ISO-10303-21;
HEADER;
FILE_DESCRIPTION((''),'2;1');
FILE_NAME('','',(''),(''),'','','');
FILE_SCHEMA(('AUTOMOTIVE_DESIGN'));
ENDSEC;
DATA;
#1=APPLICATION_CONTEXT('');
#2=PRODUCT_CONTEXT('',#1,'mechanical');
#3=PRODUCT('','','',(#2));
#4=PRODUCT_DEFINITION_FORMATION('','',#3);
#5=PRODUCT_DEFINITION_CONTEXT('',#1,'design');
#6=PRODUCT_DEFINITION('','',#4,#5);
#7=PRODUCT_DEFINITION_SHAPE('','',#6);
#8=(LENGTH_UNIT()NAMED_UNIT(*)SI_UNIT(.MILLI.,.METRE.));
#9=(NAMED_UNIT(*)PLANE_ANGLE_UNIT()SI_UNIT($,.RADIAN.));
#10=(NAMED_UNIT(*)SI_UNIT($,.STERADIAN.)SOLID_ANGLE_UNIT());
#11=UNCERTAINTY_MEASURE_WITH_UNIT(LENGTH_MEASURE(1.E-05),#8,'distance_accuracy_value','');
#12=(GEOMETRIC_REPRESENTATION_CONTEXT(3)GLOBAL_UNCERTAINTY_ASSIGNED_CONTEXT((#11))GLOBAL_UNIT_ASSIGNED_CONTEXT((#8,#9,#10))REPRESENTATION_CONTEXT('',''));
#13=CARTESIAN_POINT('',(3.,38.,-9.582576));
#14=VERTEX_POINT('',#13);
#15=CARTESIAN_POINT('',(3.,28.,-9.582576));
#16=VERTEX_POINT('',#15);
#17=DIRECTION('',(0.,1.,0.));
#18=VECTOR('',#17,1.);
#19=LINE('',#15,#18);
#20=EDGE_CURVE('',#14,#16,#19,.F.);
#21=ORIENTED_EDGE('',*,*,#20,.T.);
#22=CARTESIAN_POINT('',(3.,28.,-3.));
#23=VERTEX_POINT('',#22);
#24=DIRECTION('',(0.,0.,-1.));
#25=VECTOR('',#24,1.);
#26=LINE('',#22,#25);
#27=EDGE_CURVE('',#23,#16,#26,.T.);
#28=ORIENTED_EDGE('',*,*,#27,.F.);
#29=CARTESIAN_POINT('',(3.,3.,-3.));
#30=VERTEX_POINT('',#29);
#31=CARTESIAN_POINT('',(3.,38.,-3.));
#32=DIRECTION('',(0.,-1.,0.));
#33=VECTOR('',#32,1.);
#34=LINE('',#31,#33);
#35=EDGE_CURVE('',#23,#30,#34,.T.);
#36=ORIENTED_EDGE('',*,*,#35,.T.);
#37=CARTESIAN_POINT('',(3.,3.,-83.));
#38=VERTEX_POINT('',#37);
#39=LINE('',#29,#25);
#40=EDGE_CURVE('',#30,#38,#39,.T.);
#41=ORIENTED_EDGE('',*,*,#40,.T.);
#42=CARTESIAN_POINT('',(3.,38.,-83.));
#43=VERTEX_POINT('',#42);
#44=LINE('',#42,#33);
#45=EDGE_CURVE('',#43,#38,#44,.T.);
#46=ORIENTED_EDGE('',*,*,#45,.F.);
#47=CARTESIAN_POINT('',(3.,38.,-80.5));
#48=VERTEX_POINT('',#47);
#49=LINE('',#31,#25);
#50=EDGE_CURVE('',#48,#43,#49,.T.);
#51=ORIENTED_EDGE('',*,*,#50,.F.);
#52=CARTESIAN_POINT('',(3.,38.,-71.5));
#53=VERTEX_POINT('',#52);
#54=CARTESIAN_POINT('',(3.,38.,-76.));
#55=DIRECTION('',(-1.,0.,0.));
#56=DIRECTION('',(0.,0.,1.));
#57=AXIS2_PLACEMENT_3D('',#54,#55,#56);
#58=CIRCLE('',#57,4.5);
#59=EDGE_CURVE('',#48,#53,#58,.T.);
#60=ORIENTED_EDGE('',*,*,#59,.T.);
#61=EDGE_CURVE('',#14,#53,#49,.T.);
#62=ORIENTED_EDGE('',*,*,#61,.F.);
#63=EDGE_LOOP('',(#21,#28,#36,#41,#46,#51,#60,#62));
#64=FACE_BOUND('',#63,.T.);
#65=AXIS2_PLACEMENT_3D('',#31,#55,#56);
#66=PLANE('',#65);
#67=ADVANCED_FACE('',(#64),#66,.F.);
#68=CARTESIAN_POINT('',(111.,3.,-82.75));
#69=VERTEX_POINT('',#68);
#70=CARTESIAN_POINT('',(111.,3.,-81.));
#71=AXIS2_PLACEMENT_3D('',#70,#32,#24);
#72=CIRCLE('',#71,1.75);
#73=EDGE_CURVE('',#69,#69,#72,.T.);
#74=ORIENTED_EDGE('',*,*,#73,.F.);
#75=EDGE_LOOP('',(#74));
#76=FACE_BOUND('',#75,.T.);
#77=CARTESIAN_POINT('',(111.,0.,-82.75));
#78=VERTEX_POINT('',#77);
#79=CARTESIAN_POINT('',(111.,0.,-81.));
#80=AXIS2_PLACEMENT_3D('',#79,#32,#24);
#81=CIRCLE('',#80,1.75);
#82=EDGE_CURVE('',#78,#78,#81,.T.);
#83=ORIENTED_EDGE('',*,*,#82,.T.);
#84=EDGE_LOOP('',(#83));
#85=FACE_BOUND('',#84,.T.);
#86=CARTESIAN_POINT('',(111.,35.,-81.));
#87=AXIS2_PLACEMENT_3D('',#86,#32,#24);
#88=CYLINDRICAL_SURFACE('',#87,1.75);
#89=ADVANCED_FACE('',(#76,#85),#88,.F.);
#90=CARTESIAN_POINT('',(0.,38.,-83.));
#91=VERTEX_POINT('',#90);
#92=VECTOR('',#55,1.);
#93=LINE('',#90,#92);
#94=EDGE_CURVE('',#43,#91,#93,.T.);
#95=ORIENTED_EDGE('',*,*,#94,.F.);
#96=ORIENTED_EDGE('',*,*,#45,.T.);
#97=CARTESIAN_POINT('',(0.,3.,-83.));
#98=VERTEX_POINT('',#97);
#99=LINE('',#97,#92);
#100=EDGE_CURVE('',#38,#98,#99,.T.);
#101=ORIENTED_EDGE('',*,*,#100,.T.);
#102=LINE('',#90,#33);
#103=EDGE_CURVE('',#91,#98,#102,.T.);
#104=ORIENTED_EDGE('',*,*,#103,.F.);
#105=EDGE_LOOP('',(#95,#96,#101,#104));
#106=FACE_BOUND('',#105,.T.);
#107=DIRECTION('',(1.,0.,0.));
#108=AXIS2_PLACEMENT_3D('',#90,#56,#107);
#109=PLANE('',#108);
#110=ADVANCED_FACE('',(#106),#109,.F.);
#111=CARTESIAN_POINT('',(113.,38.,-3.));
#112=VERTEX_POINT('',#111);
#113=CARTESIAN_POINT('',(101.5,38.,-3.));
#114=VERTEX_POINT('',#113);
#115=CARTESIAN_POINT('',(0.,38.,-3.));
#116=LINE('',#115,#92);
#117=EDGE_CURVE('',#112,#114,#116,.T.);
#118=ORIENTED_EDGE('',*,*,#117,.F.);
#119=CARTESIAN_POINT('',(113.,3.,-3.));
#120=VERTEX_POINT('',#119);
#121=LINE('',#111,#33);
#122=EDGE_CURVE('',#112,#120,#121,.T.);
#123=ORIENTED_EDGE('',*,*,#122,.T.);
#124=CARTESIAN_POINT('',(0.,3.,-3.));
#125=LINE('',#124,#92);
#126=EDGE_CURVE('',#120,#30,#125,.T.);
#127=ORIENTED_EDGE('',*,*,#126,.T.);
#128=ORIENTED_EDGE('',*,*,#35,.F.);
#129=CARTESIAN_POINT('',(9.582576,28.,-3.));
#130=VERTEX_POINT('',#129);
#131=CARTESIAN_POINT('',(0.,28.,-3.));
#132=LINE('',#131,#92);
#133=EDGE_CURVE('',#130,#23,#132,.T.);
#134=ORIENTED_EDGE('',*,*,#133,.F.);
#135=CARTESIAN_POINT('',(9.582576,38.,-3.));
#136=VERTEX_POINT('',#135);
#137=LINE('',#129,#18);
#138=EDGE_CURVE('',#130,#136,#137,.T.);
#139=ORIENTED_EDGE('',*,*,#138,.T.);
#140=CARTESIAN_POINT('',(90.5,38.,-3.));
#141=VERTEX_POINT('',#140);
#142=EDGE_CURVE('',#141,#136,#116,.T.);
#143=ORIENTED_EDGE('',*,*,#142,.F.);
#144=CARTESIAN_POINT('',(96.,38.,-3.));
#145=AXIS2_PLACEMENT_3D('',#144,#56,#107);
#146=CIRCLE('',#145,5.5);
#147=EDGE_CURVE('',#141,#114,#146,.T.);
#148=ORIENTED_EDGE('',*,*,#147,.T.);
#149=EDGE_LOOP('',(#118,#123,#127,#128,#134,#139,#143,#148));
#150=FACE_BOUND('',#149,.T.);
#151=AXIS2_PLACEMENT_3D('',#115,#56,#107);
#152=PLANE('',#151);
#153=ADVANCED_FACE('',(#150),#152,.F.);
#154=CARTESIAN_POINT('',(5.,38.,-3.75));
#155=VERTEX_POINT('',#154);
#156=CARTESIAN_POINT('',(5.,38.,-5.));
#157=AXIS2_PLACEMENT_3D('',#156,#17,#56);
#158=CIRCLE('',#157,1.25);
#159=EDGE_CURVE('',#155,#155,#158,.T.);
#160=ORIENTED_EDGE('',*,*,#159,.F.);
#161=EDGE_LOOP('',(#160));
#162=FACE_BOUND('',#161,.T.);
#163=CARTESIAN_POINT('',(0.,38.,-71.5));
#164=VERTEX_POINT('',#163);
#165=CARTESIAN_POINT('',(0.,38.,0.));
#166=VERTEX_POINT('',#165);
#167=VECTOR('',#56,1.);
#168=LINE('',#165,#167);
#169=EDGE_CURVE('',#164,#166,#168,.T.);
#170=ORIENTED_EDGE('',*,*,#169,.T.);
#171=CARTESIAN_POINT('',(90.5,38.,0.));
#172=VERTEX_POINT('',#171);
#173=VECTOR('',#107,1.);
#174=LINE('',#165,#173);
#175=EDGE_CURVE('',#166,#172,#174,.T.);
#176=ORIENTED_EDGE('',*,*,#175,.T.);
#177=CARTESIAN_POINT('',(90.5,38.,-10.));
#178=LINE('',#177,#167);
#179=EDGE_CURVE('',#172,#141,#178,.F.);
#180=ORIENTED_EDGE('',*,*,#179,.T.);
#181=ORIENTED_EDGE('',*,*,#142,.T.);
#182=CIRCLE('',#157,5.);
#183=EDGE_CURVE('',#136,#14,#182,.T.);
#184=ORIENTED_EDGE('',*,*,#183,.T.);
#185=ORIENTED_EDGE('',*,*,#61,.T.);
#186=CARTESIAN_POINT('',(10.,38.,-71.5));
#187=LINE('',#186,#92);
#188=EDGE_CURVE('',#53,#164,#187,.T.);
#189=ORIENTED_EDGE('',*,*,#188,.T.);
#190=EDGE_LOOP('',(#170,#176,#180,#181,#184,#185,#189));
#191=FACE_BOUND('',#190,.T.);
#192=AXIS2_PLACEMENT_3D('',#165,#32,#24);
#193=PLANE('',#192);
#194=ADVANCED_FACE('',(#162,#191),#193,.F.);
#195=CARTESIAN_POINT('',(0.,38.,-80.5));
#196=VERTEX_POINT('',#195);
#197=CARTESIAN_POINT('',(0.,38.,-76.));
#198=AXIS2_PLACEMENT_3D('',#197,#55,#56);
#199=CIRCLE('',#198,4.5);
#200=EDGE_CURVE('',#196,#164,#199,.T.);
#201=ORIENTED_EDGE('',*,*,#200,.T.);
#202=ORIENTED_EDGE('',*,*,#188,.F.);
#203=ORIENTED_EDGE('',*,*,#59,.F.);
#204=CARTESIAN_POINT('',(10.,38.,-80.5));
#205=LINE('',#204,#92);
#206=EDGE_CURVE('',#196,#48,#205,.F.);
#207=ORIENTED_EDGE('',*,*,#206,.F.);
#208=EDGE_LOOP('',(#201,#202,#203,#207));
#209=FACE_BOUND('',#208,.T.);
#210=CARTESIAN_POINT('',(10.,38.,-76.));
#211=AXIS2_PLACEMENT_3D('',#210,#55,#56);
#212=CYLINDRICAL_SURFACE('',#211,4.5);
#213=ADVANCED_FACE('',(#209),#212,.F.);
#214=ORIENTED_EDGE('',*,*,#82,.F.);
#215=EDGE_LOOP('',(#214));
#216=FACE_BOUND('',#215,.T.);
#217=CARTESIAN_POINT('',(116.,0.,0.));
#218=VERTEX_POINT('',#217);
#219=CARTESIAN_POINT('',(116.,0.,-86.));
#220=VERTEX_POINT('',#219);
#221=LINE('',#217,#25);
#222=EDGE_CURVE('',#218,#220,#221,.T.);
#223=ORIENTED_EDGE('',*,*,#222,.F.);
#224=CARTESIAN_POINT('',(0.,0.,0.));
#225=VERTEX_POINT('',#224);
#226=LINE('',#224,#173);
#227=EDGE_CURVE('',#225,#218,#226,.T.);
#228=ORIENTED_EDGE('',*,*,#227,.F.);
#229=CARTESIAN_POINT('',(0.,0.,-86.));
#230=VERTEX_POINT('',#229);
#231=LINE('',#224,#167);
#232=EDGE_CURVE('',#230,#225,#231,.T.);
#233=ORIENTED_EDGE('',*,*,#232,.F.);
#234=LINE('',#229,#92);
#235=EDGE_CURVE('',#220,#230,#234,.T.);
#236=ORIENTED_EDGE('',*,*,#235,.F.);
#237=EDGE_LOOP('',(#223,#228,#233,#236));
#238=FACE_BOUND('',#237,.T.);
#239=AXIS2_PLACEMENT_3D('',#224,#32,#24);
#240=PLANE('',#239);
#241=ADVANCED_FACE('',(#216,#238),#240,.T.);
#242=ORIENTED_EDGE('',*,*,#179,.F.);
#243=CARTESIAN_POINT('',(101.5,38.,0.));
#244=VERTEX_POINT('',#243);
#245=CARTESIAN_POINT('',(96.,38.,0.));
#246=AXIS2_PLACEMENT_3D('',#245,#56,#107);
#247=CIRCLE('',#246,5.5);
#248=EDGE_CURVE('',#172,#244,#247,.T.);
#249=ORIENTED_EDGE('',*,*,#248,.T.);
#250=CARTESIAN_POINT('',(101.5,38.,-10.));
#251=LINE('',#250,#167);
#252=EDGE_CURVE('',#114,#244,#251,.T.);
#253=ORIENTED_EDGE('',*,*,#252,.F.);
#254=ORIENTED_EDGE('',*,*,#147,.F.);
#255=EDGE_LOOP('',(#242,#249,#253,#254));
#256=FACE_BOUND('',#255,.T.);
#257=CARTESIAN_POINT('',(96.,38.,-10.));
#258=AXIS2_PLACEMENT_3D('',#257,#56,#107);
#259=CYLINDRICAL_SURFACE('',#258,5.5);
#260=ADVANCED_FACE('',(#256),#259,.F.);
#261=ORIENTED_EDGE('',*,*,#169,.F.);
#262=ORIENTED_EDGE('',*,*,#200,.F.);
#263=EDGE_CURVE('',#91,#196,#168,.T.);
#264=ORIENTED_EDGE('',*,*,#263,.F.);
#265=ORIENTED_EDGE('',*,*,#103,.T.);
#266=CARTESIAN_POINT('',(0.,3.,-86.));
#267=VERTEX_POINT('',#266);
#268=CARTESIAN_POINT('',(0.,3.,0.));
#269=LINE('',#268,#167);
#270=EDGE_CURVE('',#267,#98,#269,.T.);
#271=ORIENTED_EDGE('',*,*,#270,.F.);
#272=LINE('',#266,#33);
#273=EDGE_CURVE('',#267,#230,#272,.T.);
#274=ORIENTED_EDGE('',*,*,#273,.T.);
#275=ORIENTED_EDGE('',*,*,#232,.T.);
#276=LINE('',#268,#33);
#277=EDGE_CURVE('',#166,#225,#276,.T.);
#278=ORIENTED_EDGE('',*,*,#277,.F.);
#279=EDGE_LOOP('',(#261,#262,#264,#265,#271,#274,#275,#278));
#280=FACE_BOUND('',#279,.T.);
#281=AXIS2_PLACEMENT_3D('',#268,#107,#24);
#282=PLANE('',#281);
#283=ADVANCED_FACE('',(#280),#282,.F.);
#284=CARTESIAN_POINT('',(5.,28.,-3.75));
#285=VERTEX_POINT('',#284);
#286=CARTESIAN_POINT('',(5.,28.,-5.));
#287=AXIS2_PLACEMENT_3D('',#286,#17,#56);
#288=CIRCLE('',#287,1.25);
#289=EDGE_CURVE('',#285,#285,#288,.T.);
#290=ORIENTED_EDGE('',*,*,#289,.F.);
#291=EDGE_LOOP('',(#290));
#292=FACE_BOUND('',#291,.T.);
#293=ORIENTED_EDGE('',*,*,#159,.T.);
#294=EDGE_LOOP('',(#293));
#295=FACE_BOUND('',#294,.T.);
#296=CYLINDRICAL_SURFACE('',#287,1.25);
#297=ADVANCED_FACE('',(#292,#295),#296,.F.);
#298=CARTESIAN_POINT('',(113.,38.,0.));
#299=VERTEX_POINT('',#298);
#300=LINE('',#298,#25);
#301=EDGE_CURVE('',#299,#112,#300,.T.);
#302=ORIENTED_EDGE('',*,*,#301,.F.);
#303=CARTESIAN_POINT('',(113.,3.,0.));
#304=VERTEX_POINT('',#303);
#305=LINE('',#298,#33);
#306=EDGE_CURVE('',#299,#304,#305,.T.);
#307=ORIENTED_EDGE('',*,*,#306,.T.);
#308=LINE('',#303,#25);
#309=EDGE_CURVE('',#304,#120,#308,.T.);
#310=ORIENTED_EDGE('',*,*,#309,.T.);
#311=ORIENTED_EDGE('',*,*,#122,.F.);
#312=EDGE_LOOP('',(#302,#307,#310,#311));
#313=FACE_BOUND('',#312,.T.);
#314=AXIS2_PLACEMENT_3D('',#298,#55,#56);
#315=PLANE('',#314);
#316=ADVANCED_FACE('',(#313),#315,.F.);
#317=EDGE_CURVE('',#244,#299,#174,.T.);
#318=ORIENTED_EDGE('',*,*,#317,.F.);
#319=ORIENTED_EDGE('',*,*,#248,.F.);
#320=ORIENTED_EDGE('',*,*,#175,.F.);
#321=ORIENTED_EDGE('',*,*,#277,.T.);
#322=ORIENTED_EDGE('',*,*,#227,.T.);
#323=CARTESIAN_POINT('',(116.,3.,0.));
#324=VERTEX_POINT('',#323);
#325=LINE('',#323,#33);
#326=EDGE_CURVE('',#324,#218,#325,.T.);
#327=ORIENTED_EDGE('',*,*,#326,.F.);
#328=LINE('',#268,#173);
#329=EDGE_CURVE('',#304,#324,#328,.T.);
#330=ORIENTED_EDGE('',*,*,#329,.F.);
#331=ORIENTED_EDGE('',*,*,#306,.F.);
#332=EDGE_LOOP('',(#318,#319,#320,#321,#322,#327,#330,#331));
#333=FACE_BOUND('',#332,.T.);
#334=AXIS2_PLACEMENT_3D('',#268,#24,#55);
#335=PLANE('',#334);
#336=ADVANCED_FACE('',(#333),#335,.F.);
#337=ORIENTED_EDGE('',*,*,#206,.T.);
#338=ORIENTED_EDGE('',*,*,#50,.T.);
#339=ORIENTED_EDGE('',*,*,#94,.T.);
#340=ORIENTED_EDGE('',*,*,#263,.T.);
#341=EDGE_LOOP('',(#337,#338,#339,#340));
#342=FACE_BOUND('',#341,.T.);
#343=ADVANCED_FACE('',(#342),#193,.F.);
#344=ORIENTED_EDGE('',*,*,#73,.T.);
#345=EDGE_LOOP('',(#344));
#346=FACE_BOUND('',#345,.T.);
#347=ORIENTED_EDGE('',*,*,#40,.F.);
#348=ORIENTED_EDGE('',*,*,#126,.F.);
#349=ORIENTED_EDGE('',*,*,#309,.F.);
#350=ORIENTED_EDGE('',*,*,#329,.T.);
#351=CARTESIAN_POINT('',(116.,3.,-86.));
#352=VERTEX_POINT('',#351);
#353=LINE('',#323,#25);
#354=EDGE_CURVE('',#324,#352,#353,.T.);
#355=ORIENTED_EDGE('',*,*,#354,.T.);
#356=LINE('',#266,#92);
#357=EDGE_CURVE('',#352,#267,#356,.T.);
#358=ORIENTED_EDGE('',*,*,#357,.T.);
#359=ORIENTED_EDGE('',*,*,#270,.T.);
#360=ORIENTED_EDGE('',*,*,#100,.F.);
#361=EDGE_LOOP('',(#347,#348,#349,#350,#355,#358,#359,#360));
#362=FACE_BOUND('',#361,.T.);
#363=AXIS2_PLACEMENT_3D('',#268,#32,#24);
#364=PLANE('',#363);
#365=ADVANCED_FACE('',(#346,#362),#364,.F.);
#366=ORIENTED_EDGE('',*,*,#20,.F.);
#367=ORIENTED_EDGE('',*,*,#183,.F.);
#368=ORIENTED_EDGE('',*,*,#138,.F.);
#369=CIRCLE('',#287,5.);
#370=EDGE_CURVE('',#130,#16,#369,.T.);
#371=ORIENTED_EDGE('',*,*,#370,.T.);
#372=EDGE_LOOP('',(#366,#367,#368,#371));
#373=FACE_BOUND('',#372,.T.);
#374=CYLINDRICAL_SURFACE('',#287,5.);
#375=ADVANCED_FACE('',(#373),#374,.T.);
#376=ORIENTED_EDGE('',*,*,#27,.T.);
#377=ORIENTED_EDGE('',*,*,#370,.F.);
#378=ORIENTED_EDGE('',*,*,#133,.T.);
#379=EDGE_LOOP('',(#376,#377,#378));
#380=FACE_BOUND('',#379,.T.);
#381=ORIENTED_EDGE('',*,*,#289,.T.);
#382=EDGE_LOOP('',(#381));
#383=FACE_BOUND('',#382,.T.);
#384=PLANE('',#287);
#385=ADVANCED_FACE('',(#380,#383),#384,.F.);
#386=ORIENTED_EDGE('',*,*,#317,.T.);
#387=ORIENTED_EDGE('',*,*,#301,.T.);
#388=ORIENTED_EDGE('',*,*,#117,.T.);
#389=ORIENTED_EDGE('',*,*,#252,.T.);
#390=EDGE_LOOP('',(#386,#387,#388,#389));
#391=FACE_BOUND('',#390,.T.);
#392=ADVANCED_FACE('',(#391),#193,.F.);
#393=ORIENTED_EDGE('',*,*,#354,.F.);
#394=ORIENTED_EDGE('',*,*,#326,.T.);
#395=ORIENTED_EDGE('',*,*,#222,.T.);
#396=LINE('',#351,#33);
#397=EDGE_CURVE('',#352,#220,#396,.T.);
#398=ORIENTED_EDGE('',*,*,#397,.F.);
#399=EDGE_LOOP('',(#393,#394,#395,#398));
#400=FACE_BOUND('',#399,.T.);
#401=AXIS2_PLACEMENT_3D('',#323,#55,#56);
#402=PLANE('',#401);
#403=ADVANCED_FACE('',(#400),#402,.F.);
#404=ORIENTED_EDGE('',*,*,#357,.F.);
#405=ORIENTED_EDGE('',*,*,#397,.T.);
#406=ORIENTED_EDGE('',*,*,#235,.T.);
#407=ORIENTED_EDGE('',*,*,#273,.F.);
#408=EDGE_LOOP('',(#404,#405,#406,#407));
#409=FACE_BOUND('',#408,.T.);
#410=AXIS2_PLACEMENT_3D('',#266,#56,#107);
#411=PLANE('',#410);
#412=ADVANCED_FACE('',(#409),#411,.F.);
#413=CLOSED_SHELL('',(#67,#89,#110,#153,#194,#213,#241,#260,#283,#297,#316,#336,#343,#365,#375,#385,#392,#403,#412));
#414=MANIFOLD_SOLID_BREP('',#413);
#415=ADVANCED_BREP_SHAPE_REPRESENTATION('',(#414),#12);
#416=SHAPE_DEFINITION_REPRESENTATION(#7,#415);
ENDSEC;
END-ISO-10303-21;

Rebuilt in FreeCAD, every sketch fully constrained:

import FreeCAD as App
import Part
import Sketcher

V = App.Vector
Q = App.Units.Quantity


def add_polygon(sketch, points):
    """Adds a closed chain of lines whose ends are joined by coincident constraints."""
    first, n = sketch.GeometryCount, len(points)
    for a, b in zip(points, points[1:] + points[:1]):
        sketch.addGeometry(Part.LineSegment(App.Vector(*a, 0), App.Vector(*b, 0)), False)
    for i in range(n):
        sketch.addConstraint(Sketcher.Constraint("Coincident", first + i, 2, first + (i + 1) % n, 1))

doc = App.newDocument("Part")
params = doc.addObject("Spreadsheet::Sheet", "Params")
for row, (alias, value) in enumerate([
    ("sketch1_width", "116 mm"),
    ("sketch1_height", "86 mm"),
    ("pad1_length", "3 mm"),
    ("sketch2_width", "113 mm"),
    ("sketch2_height", "3 mm"),
    ("pad2_length", "35 mm"),
    ("sketch3_width", "3 mm"),
    ("sketch3_height", "80 mm"),
    ("pad3_length", "35 mm"),
    ("sketch4_diameter", "3.5 mm"),
    ("pocket1_length", "35 mm"),
    ("sketch5_diameter", "10 mm"),
    ("sketch5_diameter2", "2.5 mm"),
    ("pad4_length", "10 mm"),
    ("sketch6_diameter", "11 mm"),
    ("pocket2_length", "10 mm"),
    ("sketch7_diameter", "9 mm"),
    ("pocket3_length", "10 mm"),
], start=1):
    params.set(f"A{row}", alias)
    params.set(f"B{row}", "=" + value)
    params.setAlias(f"B{row}", alias)

body = doc.addObject("PartDesign::Body", "Body")

# Sketch on XZ plane
sketch1 = body.newObject("Sketcher::SketchObject", "Sketch")
sketch1.AttachmentSupport = (doc.getObject("XZ_Plane"), [""])
sketch1.MapMode = "FlatFace"
add_polygon(sketch1, [(0, -86), (0, 0), (116, 0), (116, -86)])  # lines 0-3
sketch1.addConstraint([
    Sketcher.Constraint("Vertical", 0),
    Sketcher.Constraint("Horizontal", 1),
    Sketcher.Constraint("Vertical", 2),
    Sketcher.Constraint("Horizontal", 3),
    Sketcher.Constraint("Coincident", 0, 2, -1, 1),
    Sketcher.Constraint("DistanceX", 1, 1, 1, 2, Q("116 mm")),
    Sketcher.Constraint("DistanceY", 0, 1, 0, 2, Q("86 mm")),
])
sketch1.setExpression("Constraints[9]", "Params.sketch1_width")
sketch1.setExpression("Constraints[10]", "Params.sketch1_height")
pad1 = body.newObject("PartDesign::Pad", "Pad")
pad1.Profile = sketch1
pad1.setExpression("Length", "Params.pad1_length")
pad1.Reversed = True

# Sketch on XZ plane
sketch2 = body.newObject("Sketcher::SketchObject", "Sketch001")
sketch2.AttachmentSupport = (doc.getObject("XZ_Plane"), [""])
sketch2.MapMode = "FlatFace"
sketch2.AttachmentOffset = App.Placement(V(0, 0, -3), App.Rotation())
add_polygon(sketch2, [(0, -3), (0, 0), (113, 0), (113, -3)])  # lines 0-3
sketch2.addConstraint([
    Sketcher.Constraint("Vertical", 0),
    Sketcher.Constraint("Horizontal", 1),
    Sketcher.Constraint("Vertical", 2),
    Sketcher.Constraint("Horizontal", 3),
    Sketcher.Constraint("Coincident", 0, 2, -1, 1),
    Sketcher.Constraint("DistanceX", 1, 1, 1, 2, Q("113 mm")),
    Sketcher.Constraint("DistanceY", 0, 1, 0, 2, Q("3 mm")),
])
sketch2.setExpression("Constraints[9]", "Params.sketch2_width")
sketch2.setExpression("Constraints[10]", "Params.sketch2_height")
pad2 = body.newObject("PartDesign::Pad", "Pad001")
pad2.Profile = sketch2
pad2.setExpression("Length", "Params.pad2_length")
pad2.Reversed = True

# Sketch on XZ plane
sketch3 = body.newObject("Sketcher::SketchObject", "Sketch002")
sketch3.AttachmentSupport = (doc.getObject("XZ_Plane"), [""])
sketch3.MapMode = "FlatFace"
sketch3.AttachmentOffset = App.Placement(V(0, 0, -3), App.Rotation())
add_polygon(sketch3, [(0, -83), (0, -3), (3, -3), (3, -83)])  # lines 0-3
sketch3.addConstraint([
    Sketcher.Constraint("Vertical", 0),
    Sketcher.Constraint("Horizontal", 1),
    Sketcher.Constraint("Vertical", 2),
    Sketcher.Constraint("Horizontal", 3),
    Sketcher.Constraint("PointOnObject", 0, 2, -2),
    Sketcher.Constraint("DistanceX", 1, 1, 1, 2, Q("3 mm")),
    Sketcher.Constraint("DistanceY", 0, 1, 0, 2, Q("80 mm")),
    Sketcher.Constraint("DistanceY", 0, 2, -1, 1, Q("3 mm")),
])
sketch3.setExpression("Constraints[9]", "Params.sketch3_width")
sketch3.setExpression("Constraints[10]", "Params.sketch3_height")
pad3 = body.newObject("PartDesign::Pad", "Pad002")
pad3.Profile = sketch3
pad3.setExpression("Length", "Params.pad3_length")
pad3.Reversed = True

# Sketch on XZ plane
sketch4 = body.newObject("Sketcher::SketchObject", "Sketch003")
sketch4.AttachmentSupport = (doc.getObject("XZ_Plane"), [""])
sketch4.MapMode = "FlatFace"
sketch4.addGeometry(Part.Circle(V(111, -81, 0), V(0, 0, 1), 1.75), False)
sketch4.addConstraint([
    Sketcher.Constraint("Diameter", 0, Q("3.5 mm")),
    Sketcher.Constraint("DistanceX", -1, 1, 0, 3, Q("111 mm")),
    Sketcher.Constraint("DistanceY", 0, 3, -1, 1, Q("81 mm")),
])
sketch4.setExpression("Constraints[0]", "Params.sketch4_diameter")
pocket1 = body.newObject("PartDesign::Pocket", "Pocket")
pocket1.Profile = sketch4
pocket1.setExpression("Length", "Params.pocket1_length")

# Sketch on XZ plane
sketch5 = body.newObject("Sketcher::SketchObject", "Sketch004")
sketch5.AttachmentSupport = (doc.getObject("XZ_Plane"), [""])
sketch5.MapMode = "FlatFace"
sketch5.AttachmentOffset = App.Placement(V(0, 0, -38), App.Rotation())
sketch5.addGeometry([
    Part.Circle(V(5, -5, 0), V(0, 0, 1), 5),
    Part.Circle(V(5, -5, 0), V(0, 0, 1), 1.25),
], False)
sketch5.addConstraint([
    Sketcher.Constraint("Coincident", 1, 3, 0, 3),
    Sketcher.Constraint("Diameter", 0, Q("10 mm")),
    Sketcher.Constraint("Diameter", 1, Q("2.5 mm")),
    Sketcher.Constraint("DistanceX", -1, 1, 0, 3, Q("5 mm")),
    Sketcher.Constraint("DistanceY", 0, 3, -1, 1, Q("5 mm")),
])
sketch5.setExpression("Constraints[1]", "Params.sketch5_diameter")
sketch5.setExpression("Constraints[2]", "Params.sketch5_diameter2")
pad4 = body.newObject("PartDesign::Pad", "Pad003")
pad4.Profile = sketch5
pad4.setExpression("Length", "Params.pad4_length")

# Sketch on XY plane
sketch6 = body.newObject("Sketcher::SketchObject", "Sketch005")
sketch6.AttachmentSupport = (doc.getObject("XY_Plane"), [""])
sketch6.MapMode = "FlatFace"
sketch6.addGeometry(Part.Circle(V(96, 38, 0), V(0, 0, 1), 5.5), False)
sketch6.addConstraint([
    Sketcher.Constraint("Diameter", 0, Q("11 mm")),
    Sketcher.Constraint("DistanceX", -1, 1, 0, 3, Q("96 mm")),
    Sketcher.Constraint("DistanceY", -1, 1, 0, 3, Q("38 mm")),
])
sketch6.setExpression("Constraints[0]", "Params.sketch6_diameter")
pocket2 = body.newObject("PartDesign::Pocket", "Pocket001")
pocket2.Profile = sketch6
pocket2.setExpression("Length", "Params.pocket2_length")

# Sketch on YZ plane
sketch7 = body.newObject("Sketcher::SketchObject", "Sketch006")
sketch7.AttachmentSupport = (doc.getObject("YZ_Plane"), [""])
sketch7.MapMode = "FlatFace"
sketch7.addGeometry(Part.Circle(V(38, -76, 0), V(0, 0, 1), 4.5), False)
sketch7.addConstraint([
    Sketcher.Constraint("Diameter", 0, Q("9 mm")),
    Sketcher.Constraint("DistanceX", -1, 1, 0, 3, Q("38 mm")),
    Sketcher.Constraint("DistanceY", 0, 3, -1, 1, Q("76 mm")),
])
sketch7.setExpression("Constraints[0]", "Params.sketch7_diameter")
pocket3 = body.newObject("PartDesign::Pocket", "Pocket002")
pocket3.Profile = sketch7
pocket3.setExpression("Length", "Params.pocket3_length")
pocket3.Reversed = True

doc.recompute()
